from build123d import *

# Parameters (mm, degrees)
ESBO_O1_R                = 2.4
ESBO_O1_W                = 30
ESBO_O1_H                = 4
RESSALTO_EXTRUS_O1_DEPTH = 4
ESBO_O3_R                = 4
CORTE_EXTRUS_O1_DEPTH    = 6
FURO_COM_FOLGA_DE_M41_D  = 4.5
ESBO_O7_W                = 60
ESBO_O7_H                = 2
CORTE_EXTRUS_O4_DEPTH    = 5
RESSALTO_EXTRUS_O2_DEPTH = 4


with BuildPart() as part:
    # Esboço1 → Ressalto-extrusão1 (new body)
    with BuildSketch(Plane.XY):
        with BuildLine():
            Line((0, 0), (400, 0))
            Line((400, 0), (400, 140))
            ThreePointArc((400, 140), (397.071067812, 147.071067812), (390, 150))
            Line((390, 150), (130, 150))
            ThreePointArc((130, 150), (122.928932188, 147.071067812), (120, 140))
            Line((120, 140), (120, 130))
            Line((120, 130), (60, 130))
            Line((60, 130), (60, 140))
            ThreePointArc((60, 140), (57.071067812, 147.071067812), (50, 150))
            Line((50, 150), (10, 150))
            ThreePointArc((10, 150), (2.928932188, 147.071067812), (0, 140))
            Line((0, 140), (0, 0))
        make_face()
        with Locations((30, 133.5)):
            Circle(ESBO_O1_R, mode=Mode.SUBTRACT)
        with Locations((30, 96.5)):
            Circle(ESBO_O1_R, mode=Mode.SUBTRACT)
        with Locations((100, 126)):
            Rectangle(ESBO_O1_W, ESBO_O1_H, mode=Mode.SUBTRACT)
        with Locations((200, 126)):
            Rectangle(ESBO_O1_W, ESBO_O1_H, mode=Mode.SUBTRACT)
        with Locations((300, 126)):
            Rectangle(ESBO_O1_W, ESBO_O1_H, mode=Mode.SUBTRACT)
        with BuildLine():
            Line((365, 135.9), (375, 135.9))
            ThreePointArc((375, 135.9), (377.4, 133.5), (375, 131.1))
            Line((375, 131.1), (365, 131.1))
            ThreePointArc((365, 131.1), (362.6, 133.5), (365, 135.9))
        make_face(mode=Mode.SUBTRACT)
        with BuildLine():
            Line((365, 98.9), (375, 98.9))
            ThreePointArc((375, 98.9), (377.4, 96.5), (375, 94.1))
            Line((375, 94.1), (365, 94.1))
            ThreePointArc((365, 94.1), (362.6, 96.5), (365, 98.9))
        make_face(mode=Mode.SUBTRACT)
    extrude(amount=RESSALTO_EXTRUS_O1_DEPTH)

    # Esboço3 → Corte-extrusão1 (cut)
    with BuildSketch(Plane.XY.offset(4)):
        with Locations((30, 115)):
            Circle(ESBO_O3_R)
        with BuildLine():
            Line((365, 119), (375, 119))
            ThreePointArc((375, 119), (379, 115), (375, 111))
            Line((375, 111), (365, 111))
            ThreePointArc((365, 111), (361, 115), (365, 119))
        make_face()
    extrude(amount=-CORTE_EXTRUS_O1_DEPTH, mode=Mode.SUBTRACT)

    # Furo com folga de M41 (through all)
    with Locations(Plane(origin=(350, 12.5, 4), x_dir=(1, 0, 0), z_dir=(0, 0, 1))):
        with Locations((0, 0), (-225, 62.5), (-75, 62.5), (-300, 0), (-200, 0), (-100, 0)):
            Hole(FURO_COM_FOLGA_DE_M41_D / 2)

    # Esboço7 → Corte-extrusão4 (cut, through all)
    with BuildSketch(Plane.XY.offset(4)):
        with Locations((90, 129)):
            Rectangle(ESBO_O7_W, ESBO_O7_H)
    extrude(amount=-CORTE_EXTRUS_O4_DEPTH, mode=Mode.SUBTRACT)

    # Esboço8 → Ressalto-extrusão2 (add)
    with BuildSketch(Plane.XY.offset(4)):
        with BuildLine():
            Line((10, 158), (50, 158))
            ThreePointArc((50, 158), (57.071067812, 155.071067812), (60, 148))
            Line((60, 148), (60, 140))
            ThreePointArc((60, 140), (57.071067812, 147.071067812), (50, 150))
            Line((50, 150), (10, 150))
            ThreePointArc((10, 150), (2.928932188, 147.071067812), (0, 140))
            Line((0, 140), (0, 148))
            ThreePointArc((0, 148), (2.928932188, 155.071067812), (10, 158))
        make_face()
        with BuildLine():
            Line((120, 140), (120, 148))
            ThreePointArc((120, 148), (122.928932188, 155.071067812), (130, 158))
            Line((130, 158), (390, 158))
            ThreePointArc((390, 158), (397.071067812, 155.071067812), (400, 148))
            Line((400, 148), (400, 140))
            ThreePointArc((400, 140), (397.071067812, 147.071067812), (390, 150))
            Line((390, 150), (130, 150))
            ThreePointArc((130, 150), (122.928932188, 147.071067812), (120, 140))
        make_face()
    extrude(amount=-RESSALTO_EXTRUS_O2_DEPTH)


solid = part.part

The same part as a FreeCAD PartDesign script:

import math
import FreeCAD as App
import Part
import Sketcher


def add_polygon(sketch, points):
    """Adds a closed chain of lines whose ends are joined by coincident constraints."""
    first, n = sketch.GeometryCount, len(points)
    for a, b in zip(points, points[1:] + points[:1]):
        sketch.addGeometry(Part.LineSegment(App.Vector(*a, 0), App.Vector(*b, 0)), False)
    for i in range(n):
        sketch.addConstraint(Sketcher.Constraint("Coincident", first + i, 2, first + (i + 1) % n, 1))

doc = App.newDocument("Part")
params = doc.addObject("Spreadsheet::Sheet", "Params")
for row, (alias, value) in enumerate([
    ("sketch1_radius", "10 mm"),
    ("sketch1_diameter", "4.8 mm"),
    ("sketch1_width", "400 mm"),
    ("sketch1_width2", "260 mm"),
    ("sketch1_width3", "60 mm"),
    ("pad1_length", "4 mm"),
    ("sketch2_diameter", "8 mm"),
    ("sketch2_width", "10 mm"),
    ("pocket1_length", "6 mm"),
    ("sketch3_diameter", "4.5 mm"),
    ("hole_diameter", "4.5 mm"),
    ("sketch4_width", "60 mm"),
    ("sketch4_height", "2 mm"),
    ("sketch5_radius", "10 mm"),
    ("sketch5_width", "40 mm"),
    ("sketch5_width2", "260 mm"),
    ("sketch5_height", "8 mm"),
    ("pad2_length", "4 mm"),
], start=1):
    params.set(f"A{row}", alias)
    params.set(f"B{row}", "=" + value)
    params.setAlias(f"B{row}", alias)

body = doc.addObject("PartDesign::Body", "Body")

# Sketch on XY plane
sketch1 = body.newObject("Sketcher::SketchObject", "Sketch")
sketch1.AttachmentSupport = (doc.getObject("XY_Plane"), [""])
sketch1.MapMode = "FlatFace"
sketch1.addGeometry(Part.LineSegment(App.Vector(0, 0, 0), App.Vector(400, 0, 0)), False)  # 0
sketch1.addGeometry(Part.LineSegment(App.Vector(400, 0, 0), App.Vector(400, 140, 0)), False)  # 1
sketch1.addGeometry(Part.ArcOfCircle(Part.Circle(App.Vector(390, 140, 0), App.Vector(0, 0, 1), 10), math.radians(0), math.radians(90)), False)  # 2
sketch1.addGeometry(Part.LineSegment(App.Vector(390, 150, 0), App.Vector(130, 150, 0)), False)  # 3
sketch1.addGeometry(Part.ArcOfCircle(Part.Circle(App.Vector(130, 140, 0), App.Vector(0, 0, 1), 10), math.radians(90), math.radians(180)), False)  # 4
sketch1.addGeometry(Part.LineSegment(App.Vector(120, 140, 0), App.Vector(120, 130, 0)), False)  # 5
sketch1.addGeometry(Part.LineSegment(App.Vector(120, 130, 0), App.Vector(60, 130, 0)), False)  # 6
sketch1.addGeometry(Part.LineSegment(App.Vector(60, 130, 0), App.Vector(60, 140, 0)), False)  # 7
sketch1.addGeometry(Part.ArcOfCircle(Part.Circle(App.Vector(50, 140, 0), App.Vector(0, 0, 1), 10), math.radians(0), math.radians(90)), False)  # 8
sketch1.addGeometry(Part.LineSegment(App.Vector(50, 150, 0), App.Vector(10, 150, 0)), False)  # 9
sketch1.addGeometry(Part.ArcOfCircle(Part.Circle(App.Vector(10, 140, 0), App.Vector(0, 0, 1), 10), math.radians(90), math.radians(180)), False)  # 10
sketch1.addGeometry(Part.LineSegment(App.Vector(0, 140, 0), App.Vector(0, 0, 0)), False)  # 11
sketch1.addGeometry(Part.Circle(App.Vector(30, 96.5, 0), App.Vector(0, 0, 1), 2.4), False)  # 12
sketch1.addGeometry(Part.ArcOfCircle(Part.Circle(App.Vector(365, 96.5, 0), App.Vector(0, 0, 1), 2.4), math.radians(90), math.radians(270)), False)  # 13
sketch1.addGeometry(Part.LineSegment(App.Vector(365, 98.9, 0), App.Vector(375, 98.9, 0)), False)  # 14
sketch1.addGeometry(Part.ArcOfCircle(Part.Circle(App.Vector(375, 96.5, 0), App.Vector(0, 0, 1), 2.4), math.radians(-90), math.radians(90)), False)  # 15
sketch1.addGeometry(Part.LineSegment(App.Vector(375, 94.1, 0), App.Vector(365, 94.1, 0)), False)  # 16
add_polygon(sketch1, [(115, 124), (85, 124), (85, 128), (115, 128)])  # lines 17-20
sketch1.addGeometry(Part.Circle(App.Vector(30, 133.5, 0), App.Vector(0, 0, 1), 2.4), False)  # 21
add_polygon(sketch1, [(215, 124), (185, 124), (185, 128), (215, 128)])  # lines 22-25
add_polygon(sketch1, [(315, 124), (285, 124), (285, 128), (315, 128)])  # lines 26-29
sketch1.addGeometry(Part.ArcOfCircle(Part.Circle(App.Vector(365, 133.5, 0), App.Vector(0, 0, 1), 2.4), math.radians(90), math.radians(270)), False)  # 30
sketch1.addGeometry(Part.LineSegment(App.Vector(365, 135.9, 0), App.Vector(375, 135.9, 0)), False)  # 31
sketch1.addGeometry(Part.ArcOfCircle(Part.Circle(App.Vector(375, 133.5, 0), App.Vector(0, 0, 1), 2.4), math.radians(-90), math.radians(90)), False)  # 32
sketch1.addGeometry(Part.LineSegment(App.Vector(375, 131.1, 0), App.Vector(365, 131.1, 0)), False)  # 33
sketch1.addConstraint(Sketcher.Constraint("Coincident", 0, 2, 1, 1))
sketch1.addConstraint(Sketcher.Constraint("Tangent", 1, 2, 2, 1))
sketch1.addConstraint(Sketcher.Constraint("Tangent", 2, 2, 3, 1))
sketch1.addConstraint(Sketcher.Constraint("Tangent", 3, 2, 4, 1))
sketch1.addConstraint(Sketcher.Constraint("Tangent", 4, 2, 5, 1))
sketch1.addConstraint(Sketcher.Constraint("Coincident", 5, 2, 6, 1))
sketch1.addConstraint(Sketcher.Constraint("Coincident", 6, 2, 7, 1))
sketch1.addConstraint(Sketcher.Constraint("Tangent", 7, 2, 8, 1))
sketch1.addConstraint(Sketcher.Constraint("Tangent", 8, 2, 9, 1))
sketch1.addConstraint(Sketcher.Constraint("Tangent", 9, 2, 10, 1))
sketch1.addConstraint(Sketcher.Constraint("Tangent", 10, 2, 11, 1))
sketch1.addConstraint(Sketcher.Constraint("Coincident", 11, 2, 0, 1))
sketch1.addConstraint(Sketcher.Constraint("Tangent", 13, 1, 14, 1))
sketch1.addConstraint(Sketcher.Constraint("Tangent", 14, 2, 15, 2))
sketch1.addConstraint(Sketcher.Constraint("Tangent", 15, 1, 16, 1))
sketch1.addConstraint(Sketcher.Constraint("Tangent", 16, 2, 13, 2))
sketch1.addConstraint(Sketcher.Constraint("Tangent", 30, 1, 31, 1))
sketch1.addConstraint(Sketcher.Constraint("Tangent", 31, 2, 32, 2))
sketch1.addConstraint(Sketcher.Constraint("Tangent", 32, 1, 33, 1))
sketch1.addConstraint(Sketcher.Constraint("Tangent", 33, 2, 30, 2))
sketch1.addConstraint(Sketcher.Constraint("Horizontal", 0))
sketch1.addConstraint(Sketcher.Constraint("Vertical", 1))
sketch1.addConstraint(Sketcher.Constraint("Horizontal", 3))
sketch1.addConstraint(Sketcher.Constraint("Vertical", 5))
sketch1.addConstraint(Sketcher.Constraint("Horizontal", 6))
sketch1.addConstraint(Sketcher.Constraint("Vertical", 7))
sketch1.addConstraint(Sketcher.Constraint("Horizontal", 9))
sketch1.addConstraint(Sketcher.Constraint("Vertical", 11))
sketch1.addConstraint(Sketcher.Constraint("Horizontal", 14))
sketch1.addConstraint(Sketcher.Constraint("Horizontal", 16))
sketch1.addConstraint(Sketcher.Constraint("Horizontal", 17))
sketch1.addConstraint(Sketcher.Constraint("Vertical", 18))
sketch1.addConstraint(Sketcher.Constraint("Horizontal", 19))
sketch1.addConstraint(Sketcher.Constraint("Vertical", 20))
sketch1.addConstraint(Sketcher.Constraint("Horizontal", 22))
sketch1.addConstraint(Sketcher.Constraint("Vertical", 23))
sketch1.addConstraint(Sketcher.Constraint("Horizontal", 24))
sketch1.addConstraint(Sketcher.Constraint("Vertical", 25))
sketch1.addConstraint(Sketcher.Constraint("Horizontal", 26))
sketch1.addConstraint(Sketcher.Constraint("Vertical", 27))
sketch1.addConstraint(Sketcher.Constraint("Horizontal", 28))
sketch1.addConstraint(Sketcher.Constraint("Vertical", 29))
sketch1.addConstraint(Sketcher.Constraint("Horizontal", 31))
sketch1.addConstraint(Sketcher.Constraint("Horizontal", 33))
sketch1.addConstraint(Sketcher.Constraint("Coincident", 11, 2, -1, 1))
sketch1.addConstraint(Sketcher.Constraint("Equal", 2, 4))
sketch1.addConstraint(Sketcher.Constraint("Equal", 4, 8))
sketch1.addConstraint(Sketcher.Constraint("Equal", 8, 10))
sketch1.addConstraint(Sketcher.Constraint("Equal", 12, 13))
sketch1.addConstraint(Sketcher.Constraint("Equal", 15, 21))
sketch1.addConstraint(Sketcher.Constraint("Equal", 21, 30))
sketch1.addConstraint(Sketcher.Constraint("Horizontal", 4, 3, 8, 3))
sketch1.addConstraint(Sketcher.Constraint("Horizontal", 12, 3, 13, 3))
sketch1.addConstraint(Sketcher.Constraint("Horizontal", 21, 3, 30, 3))
sketch1.addConstraint(Sketcher.Constraint("Horizontal", 20, 2, 22, 2))
sketch1.addConstraint(Sketcher.Constraint("Horizontal", 19, 2, 23, 2))
sketch1.addConstraint(Sketcher.Constraint("Horizontal", 25, 2, 26, 2))
sketch1.addConstraint(Sketcher.Constraint("Horizontal", 24, 2, 27, 2))
sketch1.addConstraint(Sketcher.Constraint("Vertical", 12, 3, 21, 3))
sketch1.addConstraint(Sketcher.Constraint("Vertical", 13, 3, 30, 3))
sketch1.addConstraint(Sketcher.Constraint("Vertical", 15, 3, 32, 3))
sketch1.addConstraint(Sketcher.Constraint("Equal", 19, 22))
sketch1.addConstraint(Sketcher.Constraint("Equal", 24, 26))
sketch1.addConstraint(Sketcher.Constraint("Equal", 33, 5))
sketch1.addConstraint(Sketcher.Constraint("Radius", 2, 10.0))
sketch1.addConstraint(Sketcher.Constraint("Diameter", 12, 4.8))
sketch1.addConstraint(Sketcher.Constraint("DistanceX", 0, 1, 0, 2, 400.0))
sketch1.addConstraint(Sketcher.Constraint("DistanceX", 3, 2, 3, 1, 260.0))
sketch1.addConstraint(Sketcher.Constraint("DistanceX", 6, 2, 6, 1, 60.0))
sketch1.addConstraint(Sketcher.Constraint("DistanceX", 14, 1, 14, 2, 10.0))
sketch1.addConstraint(Sketcher.Constraint("DistanceX", 17, 2, 17, 1, 30.0))
sketch1.addConstraint(Sketcher.Constraint("DistanceY", 1, 1, 1, 2, 140.0))
sketch1.addConstraint(Sketcher.Constraint("DistanceY", 18, 1, 18, 2, 4.0))
sketch1.addConstraint(Sketcher.Constraint("DistanceX", -1, 1, 12, 3, 30.0))
sketch1.addConstraint(Sketcher.Constraint("DistanceX", -1, 1, 13, 3, 365.0))
sketch1.addConstraint(Sketcher.Constraint("DistanceX", -1, 1, 17, 2, 85.0))
sketch1.addConstraint(Sketcher.Constraint("DistanceY", -1, 1, 17, 2, 124.0))
sketch1.addConstraint(Sketcher.Constraint("DistanceX", -1, 1, 22, 2, 185.0))
sketch1.addConstraint(Sketcher.Constraint("DistanceX", -1, 1, 26, 2, 285.0))
sketch1.addConstraint(Sketcher.Constraint("DistanceY", 12, 3, 21, 3, 37.0))
sketch1.addConstraint(Sketcher.Constraint("DistanceY", -1, 1, 12, 3, 96.5))
sketch1.setExpression("Constraints[76]", "Params.sketch1_radius")
sketch1.setExpression("Constraints[77]", "Params.sketch1_diameter")
sketch1.setExpression("Constraints[78]", "Params.sketch1_width")
sketch1.setExpression("Constraints[79]", "Params.sketch1_width2")
sketch1.setExpression("Constraints[80]", "Params.sketch1_width3")
pad1 = body.newObject("PartDesign::Pad", "Pad")
pad1.Profile = sketch1
pad1.setExpression("Length", "Params.pad1_length")

# Sketch on XY plane
sketch2 = body.newObject("Sketcher::SketchObject", "Sketch001")
sketch2.AttachmentSupport = (doc.getObject("XY_Plane"), [""])
sketch2.MapMode = "FlatFace"
sketch2.AttachmentOffset = App.Placement(App.Vector(0, 0, 4), App.Rotation())
sketch2.addGeometry(Part.Circle(App.Vector(30, 115, 0), App.Vector(0, 0, 1), 4), False)
sketch2.addGeometry(Part.LineSegment(App.Vector(375, 119, 0), App.Vector(365, 119, 0)), False)
sketch2.addGeometry(Part.ArcOfCircle(Part.Circle(App.Vector(365, 115, 0), App.Vector(0, 0, 1), 4), math.radians(90), math.radians(270)), False)
sketch2.addGeometry(Part.LineSegment(App.Vector(365, 111, 0), App.Vector(375, 111, 0)), False)
sketch2.addGeometry(Part.ArcOfCircle(Part.Circle(App.Vector(375, 115, 0), App.Vector(0, 0, 1), 4), math.radians(-90), math.radians(90)), False)
sketch2.addConstraint(Sketcher.Constraint("Tangent", 1, 2, 2, 1))
sketch2.addConstraint(Sketcher.Constraint("Tangent", 2, 2, 3, 1))
sketch2.addConstraint(Sketcher.Constraint("Tangent", 3, 2, 4, 1))
sketch2.addConstraint(Sketcher.Constraint("Tangent", 4, 2, 1, 1))
sketch2.addConstraint(Sketcher.Constraint("Horizontal", 1))
sketch2.addConstraint(Sketcher.Constraint("Horizontal", 3))
sketch2.addConstraint(Sketcher.Constraint("Equal", 0, 2))
sketch2.addConstraint(Sketcher.Constraint("Horizontal", 0, 3, 2, 3))
sketch2.addConstraint(Sketcher.Constraint("Diameter", 0, 8.0))
sketch2.addConstraint(Sketcher.Constraint("DistanceX", 1, 2, 1, 1, 10.0))
sketch2.addConstraint(Sketcher.Constraint("DistanceX", -1, 1, 0, 3, 30.0))
sketch2.addConstraint(Sketcher.Constraint("DistanceY", -1, 1, 0, 3, 115.0))
sketch2.addConstraint(Sketcher.Constraint("DistanceX", -1, 1, 2, 3, 365.0))
sketch2.setExpression("Constraints[8]", "Params.sketch2_diameter")
sketch2.setExpression("Constraints[9]", "Params.sketch2_width")
pocket1 = body.newObject("PartDesign::Pocket", "Pocket")
pocket1.Profile = sketch2
pocket1.setExpression("Length", "Params.pocket1_length")

# Sketch on XY plane
sketch3 = body.newObject("Sketcher::SketchObject", "Sketch002")
sketch3.AttachmentSupport = (doc.getObject("XY_Plane"), [""])
sketch3.MapMode = "FlatFace"
sketch3.AttachmentOffset = App.Placement(App.Vector(0, 0, 4), App.Rotation())
sketch3.addGeometry(Part.Circle(App.Vector(350, 12.5, 0), App.Vector(0, 0, 1), 2.25), False)
sketch3.addGeometry(Part.Circle(App.Vector(125, 75, 0), App.Vector(0, 0, 1), 2.25), False)
sketch3.addGeometry(Part.Circle(App.Vector(275, 75, 0), App.Vector(0, 0, 1), 2.25), False)
sketch3.addGeometry(Part.Circle(App.Vector(50, 12.5, 0), App.Vector(0, 0, 1), 2.25), False)
sketch3.addGeometry(Part.Circle(App.Vector(150, 12.5, 0), App.Vector(0, 0, 1), 2.25), False)
sketch3.addGeometry(Part.Circle(App.Vector(250, 12.5, 0), App.Vector(0, 0, 1), 2.25), False)
sketch3.addConstraint(Sketcher.Constraint("Equal", 0, 1))
sketch3.addConstraint(Sketcher.Constraint("Equal", 1, 2))
sketch3.addConstraint(Sketcher.Constraint("Equal", 2, 3))
sketch3.addConstraint(Sketcher.Constraint("Equal", 3, 4))
sketch3.addConstraint(Sketcher.Constraint("Equal", 4, 5))
sketch3.addConstraint(Sketcher.Constraint("Horizontal", 1, 3, 2, 3))
sketch3.addConstraint(Sketcher.Constraint("Horizontal", 0, 3, 3, 3))
sketch3.addConstraint(Sketcher.Constraint("Horizontal", 3, 3, 4, 3))
sketch3.addConstraint(Sketcher.Constraint("Horizontal", 4, 3, 5, 3))
sketch3.addConstraint(Sketcher.Constraint("Diameter", 0, 4.5))
sketch3.addConstraint(Sketcher.Constraint("DistanceX", -1, 1, 0, 3, 350.0))
sketch3.addConstraint(Sketcher.Constraint("DistanceX", -1, 1, 1, 3, 125.0))
sketch3.addConstraint(Sketcher.Constraint("DistanceY", -1, 1, 1, 3, 75.0))
sketch3.addConstraint(Sketcher.Constraint("DistanceX", -1, 1, 2, 3, 275.0))
sketch3.addConstraint(Sketcher.Constraint("DistanceX", -1, 1, 3, 3, 50.0))
sketch3.addConstraint(Sketcher.Constraint("DistanceX", -1, 1, 4, 3, 150.0))
sketch3.addConstraint(Sketcher.Constraint("DistanceX", -1, 1, 5, 3, 250.0))
sketch3.addConstraint(Sketcher.Constraint("DistanceY", -1, 1, 0, 3, 12.5))
sketch3.setExpression("Constraints[9]", "Params.sketch3_diameter")
doc.recompute()
hole = body.newObject("PartDesign::Hole", "Hole")
hole.Profile = sketch3
hole.ThreadType = "None"
hole.setExpression("Diameter", "Params.hole_diameter")
hole.DepthType = "ThroughAll"

# Sketch on XY plane
sketch4 = body.newObject("Sketcher::SketchObject", "Sketch003")
sketch4.AttachmentSupport = (doc.getObject("XY_Plane"), [""])
sketch4.MapMode = "FlatFace"
sketch4.AttachmentOffset = App.Placement(App.Vector(0, 0, 4), App.Rotation())
add_polygon(sketch4, [(60, 130), (60, 128), (120, 128), (120, 130)])  # lines 0-3
sketch4.addConstraint(Sketcher.Constraint("Vertical", 0))
sketch4.addConstraint(Sketcher.Constraint("Horizontal", 1))
sketch4.addConstraint(Sketcher.Constraint("Vertical", 2))
sketch4.addConstraint(Sketcher.Constraint("Horizontal", 3))
sketch4.addConstraint(Sketcher.Constraint("DistanceX", 1, 1, 1, 2, 60.0))
sketch4.addConstraint(Sketcher.Constraint("DistanceY", 0, 2, 0, 1, 2.0))
sketch4.addConstraint(Sketcher.Constraint("DistanceX", -1, 1, 0, 2, 60.0))
sketch4.addConstraint(Sketcher.Constraint("DistanceY", -1, 1, 0, 2, 128.0))
sketch4.setExpression("Constraints[8]", "Params.sketch4_width")
sketch4.setExpression("Constraints[9]", "Params.sketch4_height")
pocket2 = body.newObject("PartDesign::Pocket", "Pocket001")
pocket2.Profile = sketch4
pocket2.Type = "ThroughAll"

# Sketch on XY plane
sketch5 = body.newObject("Sketcher::SketchObject", "Sketch004")
sketch5.AttachmentSupport = (doc.getObject("XY_Plane"), [""])
sketch5.MapMode = "FlatFace"
sketch5.AttachmentOffset = App.Placement(App.Vector(0, 0, 4), App.Rotation())
sketch5.addGeometry(Part.LineSegment(App.Vector(50, 158, 0), App.Vector(10, 158, 0)), False)
sketch5.addGeometry(Part.ArcOfCircle(Part.Circle(App.Vector(10, 148, 0), App.Vector(0, 0, 1), 10), math.radians(90), math.radians(180)), False)
sketch5.addGeometry(Part.LineSegment(App.Vector(0, 148, 0), App.Vector(0, 140, 0)), False)
sketch5.addGeometry(Part.ArcOfCircle(Part.Circle(App.Vector(10, 140, 0), App.Vector(0, 0, 1), 10), math.radians(90), math.radians(180)), False)
sketch5.addGeometry(Part.LineSegment(App.Vector(10, 150, 0), App.Vector(50, 150, 0)), False)
sketch5.addGeometry(Part.ArcOfCircle(Part.Circle(App.Vector(50, 140, 0), App.Vector(0, 0, 1), 10), math.radians(0), math.radians(90)), False)
sketch5.addGeometry(Part.LineSegment(App.Vector(60, 140, 0), App.Vector(60, 148, 0)), False)
sketch5.addGeometry(Part.ArcOfCircle(Part.Circle(App.Vector(50, 148, 0), App.Vector(0, 0, 1), 10), math.radians(0), math.radians(90)), False)
sketch5.addGeometry(Part.LineSegment(App.Vector(120, 148, 0), App.Vector(120, 140, 0)), False)
sketch5.addGeometry(Part.ArcOfCircle(Part.Circle(App.Vector(130, 140, 0), App.Vector(0, 0, 1), 10), math.radians(90), math.radians(180)), False)
sketch5.addGeometry(Part.LineSegment(App.Vector(130, 150, 0), App.Vector(390, 150, 0)), False)
sketch5.addGeometry(Part.ArcOfCircle(Part.Circle(App.Vector(390, 140, 0), App.Vector(0, 0, 1), 10), math.radians(0), math.radians(90)), False)
sketch5.addGeometry(Part.LineSegment(App.Vector(400, 140, 0), App.Vector(400, 148, 0)), False)
sketch5.addGeometry(Part.ArcOfCircle(Part.Circle(App.Vector(390, 148, 0), App.Vector(0, 0, 1), 10), math.radians(0), math.radians(90)), False)
sketch5.addGeometry(Part.LineSegment(App.Vector(390, 158, 0), App.Vector(130, 158, 0)), False)
sketch5.addGeometry(Part.ArcOfCircle(Part.Circle(App.Vector(130, 148, 0), App.Vector(0, 0, 1), 10), math.radians(90), math.radians(180)), False)
sketch5.addConstraint(Sketcher.Constraint("Tangent", 0, 2, 1, 1))
sketch5.addConstraint(Sketcher.Constraint("Tangent", 1, 2, 2, 1))
sketch5.addConstraint(Sketcher.Constraint("Tangent", 2, 2, 3, 2))
sketch5.addConstraint(Sketcher.Constraint("Tangent", 3, 1, 4, 1))
sketch5.addConstraint(Sketcher.Constraint("Tangent", 4, 2, 5, 2))
sketch5.addConstraint(Sketcher.Constraint("Tangent", 5, 1, 6, 1))
sketch5.addConstraint(Sketcher.Constraint("Tangent", 6, 2, 7, 1))
sketch5.addConstraint(Sketcher.Constraint("Tangent", 7, 2, 0, 1))
sketch5.addConstraint(Sketcher.Constraint("Tangent", 8, 2, 9, 2))
sketch5.addConstraint(Sketcher.Constraint("Tangent", 9, 1, 10, 1))
sketch5.addConstraint(Sketcher.Constraint("Tangent", 10, 2, 11, 2))
sketch5.addConstraint(Sketcher.Constraint("Tangent", 11, 1, 12, 1))
sketch5.addConstraint(Sketcher.Constraint("Tangent", 12, 2, 13, 1))
sketch5.addConstraint(Sketcher.Constraint("Tangent", 13, 2, 14, 1))
sketch5.addConstraint(Sketcher.Constraint("Tangent", 14, 2, 15, 1))
sketch5.addConstraint(Sketcher.Constraint("Tangent", 15, 2, 8, 1))
sketch5.addConstraint(Sketcher.Constraint("Horizontal", 0))
sketch5.addConstraint(Sketcher.Constraint("Vertical", 2))
sketch5.addConstraint(Sketcher.Constraint("Horizontal", 4))
sketch5.addConstraint(Sketcher.Constraint("Vertical", 6))
sketch5.addConstraint(Sketcher.Constraint("Vertical", 8))
sketch5.addConstraint(Sketcher.Constraint("Horizontal", 10))
sketch5.addConstraint(Sketcher.Constraint("Vertical", 12))
sketch5.addConstraint(Sketcher.Constraint("Horizontal", 14))
sketch5.addConstraint(Sketcher.Constraint("Equal", 1, 3))
sketch5.addConstraint(Sketcher.Constraint("Equal", 3, 5))
sketch5.addConstraint(Sketcher.Constraint("Equal", 5, 7))
sketch5.addConstraint(Sketcher.Constraint("Equal", 7, 9))
sketch5.addConstraint(Sketcher.Constraint("Equal", 9, 11))
sketch5.addConstraint(Sketcher.Constraint("Equal", 11, 13))
sketch5.addConstraint(Sketcher.Constraint("Equal", 13, 15))
sketch5.addConstraint(Sketcher.Constraint("PointOnObject", 1, 2, -2))
sketch5.addConstraint(Sketcher.Constraint("Horizontal", 5, 3, 9, 3))
sketch5.addConstraint(Sketcher.Constraint("Horizontal", 7, 3, 13, 3))
sketch5.addConstraint(Sketcher.Constraint("Radius", 1, 10.0))
sketch5.addConstraint(Sketcher.Constraint("DistanceX", 0, 2, 0, 1, 40.0))
sketch5.addConstraint(Sketcher.Constraint("DistanceX", 10, 1, 10, 2, 260.0))
sketch5.addConstraint(Sketcher.Constraint("DistanceY", 2, 2, 2, 1, 8.0))
sketch5.addConstraint(Sketcher.Constraint("DistanceY", -1, 1, 1, 3, 148.0))
sketch5.addConstraint(Sketcher.Constraint("DistanceX", -1, 1, 9, 3, 130.0))
sketch5.setExpression("Constraints[34]", "Params.sketch5_radius")
sketch5.setExpression("Constraints[35]", "Params.sketch5_width")
sketch5.setExpression("Constraints[36]", "Params.sketch5_width2")
sketch5.setExpression("Constraints[37]", "Params.sketch5_height")
pad2 = body.newObject("PartDesign::Pad", "Pad001")
pad2.Profile = sketch5
pad2.setExpression("Length", "Params.pad2_length")
pad2.Reversed = True

doc.recompute()
